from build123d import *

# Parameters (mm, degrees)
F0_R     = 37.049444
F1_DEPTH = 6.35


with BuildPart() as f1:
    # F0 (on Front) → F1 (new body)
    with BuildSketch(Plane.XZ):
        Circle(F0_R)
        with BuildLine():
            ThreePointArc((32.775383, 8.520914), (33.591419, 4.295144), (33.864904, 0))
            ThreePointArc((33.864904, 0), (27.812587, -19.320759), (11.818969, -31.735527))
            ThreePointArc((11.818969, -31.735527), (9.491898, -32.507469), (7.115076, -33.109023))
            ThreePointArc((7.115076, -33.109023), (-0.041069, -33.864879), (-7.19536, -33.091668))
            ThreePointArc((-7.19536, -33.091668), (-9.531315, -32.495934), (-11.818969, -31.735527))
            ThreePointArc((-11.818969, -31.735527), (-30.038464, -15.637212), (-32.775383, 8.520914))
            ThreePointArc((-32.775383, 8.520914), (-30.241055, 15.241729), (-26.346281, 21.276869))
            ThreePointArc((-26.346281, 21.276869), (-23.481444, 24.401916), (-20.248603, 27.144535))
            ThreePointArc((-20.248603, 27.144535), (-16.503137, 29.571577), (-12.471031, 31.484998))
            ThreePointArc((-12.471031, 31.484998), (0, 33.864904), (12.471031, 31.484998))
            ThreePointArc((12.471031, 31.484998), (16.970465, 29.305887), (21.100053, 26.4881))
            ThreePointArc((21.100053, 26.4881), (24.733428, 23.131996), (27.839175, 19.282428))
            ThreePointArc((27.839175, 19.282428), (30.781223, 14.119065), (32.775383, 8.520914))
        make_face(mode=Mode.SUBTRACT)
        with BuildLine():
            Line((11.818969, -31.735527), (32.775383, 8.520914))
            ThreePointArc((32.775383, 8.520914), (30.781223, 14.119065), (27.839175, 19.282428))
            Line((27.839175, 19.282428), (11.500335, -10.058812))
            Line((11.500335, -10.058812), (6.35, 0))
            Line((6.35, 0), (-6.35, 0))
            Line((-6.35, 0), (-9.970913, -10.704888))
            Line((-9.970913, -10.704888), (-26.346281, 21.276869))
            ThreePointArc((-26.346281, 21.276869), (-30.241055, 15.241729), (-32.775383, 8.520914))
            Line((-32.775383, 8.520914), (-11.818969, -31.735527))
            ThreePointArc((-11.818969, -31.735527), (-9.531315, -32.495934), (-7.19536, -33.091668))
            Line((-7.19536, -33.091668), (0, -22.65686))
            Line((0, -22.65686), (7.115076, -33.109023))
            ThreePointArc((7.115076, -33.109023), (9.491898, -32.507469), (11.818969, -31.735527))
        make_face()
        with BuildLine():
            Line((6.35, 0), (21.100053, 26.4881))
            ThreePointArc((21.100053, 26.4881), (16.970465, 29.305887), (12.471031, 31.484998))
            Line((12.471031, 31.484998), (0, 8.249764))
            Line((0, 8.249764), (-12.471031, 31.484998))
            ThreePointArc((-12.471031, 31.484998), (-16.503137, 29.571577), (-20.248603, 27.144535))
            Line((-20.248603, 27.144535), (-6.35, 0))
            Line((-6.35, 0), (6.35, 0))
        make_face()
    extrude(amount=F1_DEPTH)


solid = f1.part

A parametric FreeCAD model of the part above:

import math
import FreeCAD as App
import Part
import Sketcher

V = App.Vector
Q = App.Units.Quantity

doc = App.newDocument("Part")
params = doc.addObject("Spreadsheet::Sheet", "Params")
for row, (alias, value) in enumerate([
    ("pad1_length", "0.25 in"),
], start=1):
    params.set(f"A{row}", alias)
    params.set(f"B{row}", "=" + value)
    params.setAlias(f"B{row}", alias)

body = doc.addObject("PartDesign::Body", "Body")

# Sketch on XZ plane
sketch1 = doc.addObject("Sketcher::SketchObject", "Sketch")
body.addObject(sketch1)
sketch1.AttachmentSupport = (doc.XZ_Plane, [""])
sketch1.MapMode = "FlatFace"
sketch1.addGeometry([
    Part.Circle(V(0, 0, 0), V(0, 0, 1), 37.049444),  # 0
    Part.ArcOfCircle(Part.Circle(V(0.000014, 0.000012, 0), V(0, 0, 1), 33.864885), math.radians(34.707883), math.radians(51.459665)),  # 1
    Part.LineSegment(V(27.839175, 19.282428, 0), V(11.500335, -10.058812, 0)),  # 2
    Part.LineSegment(V(11.500335, -10.058812, 0), V(6.35, 0, 0)),  # 3
    Part.LineSegment(V(6.35, 0, 0), V(21.100053, 26.4881, 0)),  # 4
    Part.LineSegment(V(-6.35, 0, 0), V(-9.970913, -10.704888, 0)),  # 5
    Part.LineSegment(V(-9.970913, -10.704888, 0), V(-26.346281, 21.276869, 0)),  # 6
    Part.ArcOfCircle(Part.Circle(V(-0.000033, 0.000037, 0), V(0, 0, 1), 33.864854), math.radians(126.721276), math.radians(141.076181)),  # 7
    Part.LineSegment(V(-20.248603, 27.144535, 0), V(-6.35, 0, 0)),  # 8
    Part.ArcOfCircle(Part.Circle(V(0, 0.000002, 0), V(0, 0, 1), 33.864902), math.radians(68.391758), math.radians(111.608242)),  # 9
    Part.LineSegment(V(12.471031, 31.484998, 0), V(0, 8.249764, 0)),  # 10
    Part.LineSegment(V(0, 8.249764, 0), V(-12.471031, 31.484998, 0)),  # 11
    Part.ArcOfCircle(Part.Circle(V(-0.000001, 0, 0), V(0, 0, 1), 33.864903), math.radians(165.426906), math.radians(249.573626)),  # 12
    Part.LineSegment(V(-32.775383, 8.520914, 0), V(-11.818969, -31.735527, 0)),  # 13
    Part.ArcOfCircle(Part.Circle(V(0, -0.000008, 0), V(0, 0, 1), 33.864896), math.radians(-102.267289), math.radians(-77.871682)),  # 14
    Part.LineSegment(V(-7.19536, -33.091668, 0), V(0, -22.65686, 0)),  # 15
    Part.LineSegment(V(0, -22.65686, 0), V(7.115076, -33.109023, 0)),  # 16
    Part.ArcOfCircle(Part.Circle(V(0.000001, 0, 0), V(0, 0, 1), 33.864903), math.radians(-69.573626), math.radians(0.000001)),  # 17
    Part.LineSegment(V(11.818969, -31.735527, 0), V(32.775383, 8.520914, 0)),  # 18
    Part.ArcOfCircle(Part.Circle(V(-0.00004, -0.000006, 0), V(0, 0, 1), 33.864944), math.radians(0.00001), math.radians(14.573087)),  # 19
], False)
sketch1.addConstraint([
    Sketcher.Constraint("Coincident", 1, 1, 2, 1),
    Sketcher.Constraint("Coincident", 2, 2, 3, 1),
    Sketcher.Constraint("Coincident", 3, 2, 4, 1),
    Sketcher.Constraint("Coincident", 4, 2, 1, 2),
    Sketcher.Constraint("Coincident", 5, 2, 6, 1),
    Sketcher.Constraint("Coincident", 6, 2, 7, 2),
    Sketcher.Constraint("Coincident", 7, 1, 8, 1),
    Sketcher.Constraint("Coincident", 8, 2, 5, 1),
    Sketcher.Constraint("Coincident", 9, 1, 10, 1),
    Sketcher.Constraint("Coincident", 10, 2, 11, 1),
    Sketcher.Constraint("Coincident", 11, 2, 9, 2),
    Sketcher.Constraint("Coincident", 12, 1, 13, 1),
    Sketcher.Constraint("Coincident", 13, 2, 12, 2),
    Sketcher.Constraint("Coincident", 14, 1, 15, 1),
    Sketcher.Constraint("Coincident", 15, 2, 16, 1),
    Sketcher.Constraint("Coincident", 16, 2, 14, 2),
    Sketcher.Constraint("Coincident", 17, 1, 18, 1),
    Sketcher.Constraint("Coincident", 18, 2, 19, 2),
    Sketcher.Constraint("Coincident", 19, 1, 17, 2),
    Sketcher.Constraint("Coincident", 0, 3, -1, 1),
    Sketcher.Constraint("Coincident", 9, 3, -1, 1),
    Sketcher.Constraint("Coincident", 12, 3, -1, 1),
    Sketcher.Constraint("Coincident", 14, 3, -1, 1),
    Sketcher.Constraint("Coincident", 17, 3, -1, 1),
    Sketcher.Constraint("PointOnObject", 3, 2, -1),
    Sketcher.Constraint("PointOnObject", 8, 2, -1),
    Sketcher.Constraint("PointOnObject", 10, 2, -2),
    Sketcher.Constraint("PointOnObject", 15, 2, -2),
    Sketcher.Constraint("PointOnObject", 19, 1, -1),
    Sketcher.Constraint("DistanceX", -1, 1, 3, 2, Q("0.25 in")),
    Sketcher.Constraint("DistanceX", 8, 2, -1, 1, Q("0.25 in")),
    Sketcher.Constraint("Radius", 9, 33.864902),
    Sketcher.Constraint("Diameter", 0, 74.098888),
    Sketcher.Constraint("Radius", 1, 33.864885),
    Sketcher.Constraint("Radius", 7, 33.864854),
    Sketcher.Constraint("Radius", 12, 33.864903),
    Sketcher.Constraint("Radius", 14, 33.864896),
    Sketcher.Constraint("Radius", 17, 33.864903),
    Sketcher.Constraint("Radius", 19, 33.864944),
    Sketcher.Constraint("DistanceY", -1, 1, 4, 2, 26.4881),
    Sketcher.Constraint("DistanceY", -1, 1, 11, 2, 31.484998),
    Sketcher.Constraint("DistanceY", 7, 3, 7, 1, 27.144498),
    Sketcher.Constraint("DistanceX", 12, 1, 6, 2, 6.429102),
    Sketcher.Constraint("DistanceY", 5, 2, 12, 1, 19.225802),
    Sketcher.Constraint("Distance", 4, 30.318039),
    Sketcher.Constraint("Distance", 5, 11.300692),
    Sketcher.Constraint("Distance", 8, 30.495851),
    Sketcher.Constraint("Distance", 10, 26.370489),
    Sketcher.Constraint("Distance", 11, 26.370489),
    Sketcher.Constraint("Distance", 15, 12.67511),
    Sketcher.Constraint("Distance", 16, 12.644051),
    Sketcher.Constraint("DistanceX", 6, 2, -1, 1, 26.346281),
    Sketcher.Constraint("DistanceY", -1, 1, 6, 2, 21.276869),
    Sketcher.Constraint("DistanceX", 13, 2, -1, 1, 11.818969),
    Sketcher.Constraint("DistanceX", 14, 1, -1, 1, 7.19536),
    Sketcher.Constraint("DistanceX", -1, 1, 17, 1, 11.818969),
    Sketcher.Constraint("DistanceX", 1, 3, 1, 1, 27.839161),
    Sketcher.Constraint("DistanceY", 17, 3, 1, 1, 19.282428),
    Sketcher.Constraint("DistanceX", 1, 3, 2, 2, 11.500321),
    Sketcher.Constraint("DistanceY", 2, 2, 17, 3, 10.058812),
    Sketcher.Constraint("DistanceY", 5, 2, 19, 3, 10.704882),
    Sketcher.Constraint("DistanceX", 1, 1, 18, 2, 4.936208),
])
pad1 = doc.addObject("PartDesign::Pad", "Pad")
body.addObject(pad1)
pad1.Profile = sketch1
pad1.setExpression("Length", "Params.pad1_length")

doc.recompute()
